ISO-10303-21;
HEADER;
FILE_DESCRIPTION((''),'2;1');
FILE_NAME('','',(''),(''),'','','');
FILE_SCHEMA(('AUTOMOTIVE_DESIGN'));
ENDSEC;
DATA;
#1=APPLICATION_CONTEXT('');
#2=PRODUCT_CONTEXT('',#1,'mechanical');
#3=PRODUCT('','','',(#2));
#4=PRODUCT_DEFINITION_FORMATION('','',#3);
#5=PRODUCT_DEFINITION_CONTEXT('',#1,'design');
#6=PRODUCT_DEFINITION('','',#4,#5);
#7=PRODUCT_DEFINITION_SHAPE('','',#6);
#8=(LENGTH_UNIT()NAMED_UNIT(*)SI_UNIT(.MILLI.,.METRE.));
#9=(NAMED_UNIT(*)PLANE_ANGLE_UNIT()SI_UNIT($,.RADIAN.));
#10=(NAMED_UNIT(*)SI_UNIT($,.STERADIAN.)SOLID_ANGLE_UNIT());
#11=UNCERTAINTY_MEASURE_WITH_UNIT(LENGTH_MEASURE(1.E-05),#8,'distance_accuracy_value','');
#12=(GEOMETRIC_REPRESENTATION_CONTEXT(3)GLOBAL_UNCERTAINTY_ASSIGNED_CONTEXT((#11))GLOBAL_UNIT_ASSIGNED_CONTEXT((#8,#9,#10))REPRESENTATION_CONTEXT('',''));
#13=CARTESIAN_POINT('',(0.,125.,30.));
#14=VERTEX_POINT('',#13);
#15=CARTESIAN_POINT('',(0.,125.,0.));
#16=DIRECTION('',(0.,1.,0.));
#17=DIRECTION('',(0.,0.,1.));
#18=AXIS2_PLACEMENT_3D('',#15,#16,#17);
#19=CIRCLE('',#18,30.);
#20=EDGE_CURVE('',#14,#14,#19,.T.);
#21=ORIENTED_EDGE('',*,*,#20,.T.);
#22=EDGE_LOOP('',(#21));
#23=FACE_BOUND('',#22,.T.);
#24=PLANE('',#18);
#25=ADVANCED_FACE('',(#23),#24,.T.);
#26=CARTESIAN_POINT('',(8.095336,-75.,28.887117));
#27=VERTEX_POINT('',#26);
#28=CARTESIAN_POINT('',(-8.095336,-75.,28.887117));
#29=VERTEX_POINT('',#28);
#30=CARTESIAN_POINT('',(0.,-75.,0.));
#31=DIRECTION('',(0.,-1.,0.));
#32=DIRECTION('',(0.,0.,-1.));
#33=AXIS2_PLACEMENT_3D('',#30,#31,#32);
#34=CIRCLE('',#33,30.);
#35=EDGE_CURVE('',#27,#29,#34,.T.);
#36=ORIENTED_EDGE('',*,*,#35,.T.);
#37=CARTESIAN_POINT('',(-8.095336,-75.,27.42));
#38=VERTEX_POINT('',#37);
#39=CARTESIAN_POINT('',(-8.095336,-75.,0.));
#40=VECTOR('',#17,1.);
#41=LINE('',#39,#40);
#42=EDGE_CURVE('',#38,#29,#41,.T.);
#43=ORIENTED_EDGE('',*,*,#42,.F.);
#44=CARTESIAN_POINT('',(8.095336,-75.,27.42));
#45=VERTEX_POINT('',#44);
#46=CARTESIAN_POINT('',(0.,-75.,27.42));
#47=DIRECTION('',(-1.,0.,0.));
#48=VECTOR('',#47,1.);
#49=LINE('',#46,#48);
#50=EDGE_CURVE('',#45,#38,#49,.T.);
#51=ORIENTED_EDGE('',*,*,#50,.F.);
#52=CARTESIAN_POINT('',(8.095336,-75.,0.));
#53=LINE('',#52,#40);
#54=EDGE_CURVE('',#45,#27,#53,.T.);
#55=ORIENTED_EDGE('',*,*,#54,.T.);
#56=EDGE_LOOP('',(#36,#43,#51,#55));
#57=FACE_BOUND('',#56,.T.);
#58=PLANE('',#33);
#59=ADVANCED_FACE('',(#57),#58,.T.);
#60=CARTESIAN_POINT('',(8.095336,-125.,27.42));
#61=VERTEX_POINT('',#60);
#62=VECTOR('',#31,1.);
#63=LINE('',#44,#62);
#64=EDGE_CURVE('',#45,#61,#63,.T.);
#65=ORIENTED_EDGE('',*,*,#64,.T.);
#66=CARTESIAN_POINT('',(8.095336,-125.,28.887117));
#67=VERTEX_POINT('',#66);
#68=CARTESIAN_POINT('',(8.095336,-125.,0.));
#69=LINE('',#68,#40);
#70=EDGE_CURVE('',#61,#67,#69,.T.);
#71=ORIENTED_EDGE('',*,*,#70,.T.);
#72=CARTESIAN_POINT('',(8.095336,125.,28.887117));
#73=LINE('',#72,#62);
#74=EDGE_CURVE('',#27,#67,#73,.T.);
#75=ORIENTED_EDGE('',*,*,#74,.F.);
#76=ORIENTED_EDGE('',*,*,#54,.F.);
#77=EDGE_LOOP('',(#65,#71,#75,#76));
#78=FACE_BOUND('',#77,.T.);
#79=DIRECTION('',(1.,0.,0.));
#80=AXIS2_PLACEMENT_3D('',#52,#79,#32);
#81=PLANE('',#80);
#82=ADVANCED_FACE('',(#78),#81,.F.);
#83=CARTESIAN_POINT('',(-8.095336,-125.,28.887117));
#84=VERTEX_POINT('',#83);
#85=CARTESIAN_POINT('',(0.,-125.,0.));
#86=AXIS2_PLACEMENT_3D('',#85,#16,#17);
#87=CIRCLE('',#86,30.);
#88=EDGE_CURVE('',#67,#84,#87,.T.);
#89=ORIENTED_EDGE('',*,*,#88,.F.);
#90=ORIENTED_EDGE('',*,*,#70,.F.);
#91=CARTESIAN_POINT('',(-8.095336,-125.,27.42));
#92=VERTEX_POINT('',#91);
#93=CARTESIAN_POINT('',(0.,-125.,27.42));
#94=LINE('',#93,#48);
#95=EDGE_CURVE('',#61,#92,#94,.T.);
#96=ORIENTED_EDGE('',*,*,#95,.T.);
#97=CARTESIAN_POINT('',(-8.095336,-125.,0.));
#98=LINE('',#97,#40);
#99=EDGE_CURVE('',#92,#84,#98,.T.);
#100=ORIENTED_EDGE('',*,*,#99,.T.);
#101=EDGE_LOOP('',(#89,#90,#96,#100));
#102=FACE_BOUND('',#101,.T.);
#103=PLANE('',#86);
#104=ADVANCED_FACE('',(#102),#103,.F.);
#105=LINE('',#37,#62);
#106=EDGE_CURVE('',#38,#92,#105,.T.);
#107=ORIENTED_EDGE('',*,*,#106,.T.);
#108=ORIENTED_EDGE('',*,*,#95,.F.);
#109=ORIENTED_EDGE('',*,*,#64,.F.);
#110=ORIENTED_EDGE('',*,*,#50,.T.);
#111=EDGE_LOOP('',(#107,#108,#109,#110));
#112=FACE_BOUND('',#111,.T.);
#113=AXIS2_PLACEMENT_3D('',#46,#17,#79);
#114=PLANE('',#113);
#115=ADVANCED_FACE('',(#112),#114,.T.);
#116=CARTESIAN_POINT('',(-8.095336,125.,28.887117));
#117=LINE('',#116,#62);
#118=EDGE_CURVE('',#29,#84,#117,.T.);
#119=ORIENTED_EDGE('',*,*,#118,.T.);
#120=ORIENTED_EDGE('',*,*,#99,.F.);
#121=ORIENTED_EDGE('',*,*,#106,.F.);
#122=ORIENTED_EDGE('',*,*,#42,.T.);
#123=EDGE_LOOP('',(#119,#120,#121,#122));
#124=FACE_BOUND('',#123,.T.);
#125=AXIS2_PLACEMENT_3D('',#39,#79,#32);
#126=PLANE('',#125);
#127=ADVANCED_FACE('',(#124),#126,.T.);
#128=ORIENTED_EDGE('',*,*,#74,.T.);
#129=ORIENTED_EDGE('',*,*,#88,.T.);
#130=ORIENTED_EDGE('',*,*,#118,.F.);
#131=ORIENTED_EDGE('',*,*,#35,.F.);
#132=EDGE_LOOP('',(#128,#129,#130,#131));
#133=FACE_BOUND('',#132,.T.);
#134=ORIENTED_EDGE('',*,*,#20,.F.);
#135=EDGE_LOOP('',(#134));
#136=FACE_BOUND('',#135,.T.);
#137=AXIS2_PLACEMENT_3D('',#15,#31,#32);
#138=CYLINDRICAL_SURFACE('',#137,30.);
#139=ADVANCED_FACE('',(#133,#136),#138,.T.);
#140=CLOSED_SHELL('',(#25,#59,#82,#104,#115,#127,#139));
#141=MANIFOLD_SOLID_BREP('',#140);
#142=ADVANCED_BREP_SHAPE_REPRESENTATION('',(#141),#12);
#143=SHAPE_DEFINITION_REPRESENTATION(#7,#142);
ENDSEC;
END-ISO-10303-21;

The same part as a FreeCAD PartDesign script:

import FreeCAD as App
import Part
import Sketcher
Q = App.Units.Quantity

doc = App.newDocument("Part")
body = doc.addObject("PartDesign::Body", "Body")

# Sketch on XZ plane
sketch1 = doc.addObject("Sketcher::SketchObject", "Sketch")
body.addObject(sketch1)
sketch1.AttachmentSupport = (doc.XZ_Plane, [""])
sketch1.MapMode = "FlatFace"
sketch1.addGeometry(Part.Circle(App.Vector(0, 0, 0), App.Vector(0, 0, 1), 30), False)
sketch1.addConstraint(Sketcher.Constraint("Coincident", 0, 3, -1, 1))
sketch1.addConstraint(Sketcher.Constraint("Diameter", 0, Q("60 mm")))
pad1 = doc.addObject("PartDesign::Pad", "Pad")
body.addObject(pad1)
pad1.Profile = sketch1
pad1.Length = 250
pad1.Midplane = True

# Sketch on XZ plane
sketch2 = doc.addObject("Sketcher::SketchObject", "Sketch001")
body.addObject(sketch2)
sketch2.AttachmentSupport = (doc.XZ_Plane, [""])
sketch2.MapMode = "FlatFace"
sketch2.AttachmentOffset = App.Placement(App.Vector(0, 0, 75), App.Rotation())
sketch2.addGeometry(Part.LineSegment(App.Vector(8, 34, 0), App.Vector(-8, 34, 0)), False)
sketch2.addGeometry(Part.LineSegment(App.Vector(-8, 34, 0), App.Vector(-8, 27, 0)), False)
sketch2.addGeometry(Part.LineSegment(App.Vector(-8, 27, 0), App.Vector(8, 27, 0)), False)
sketch2.addGeometry(Part.LineSegment(App.Vector(8, 27, 0), App.Vector(8, 34, 0)), False)
sketch2.addConstraint(Sketcher.Constraint("Coincident", 0, 2, 1, 1))
sketch2.addConstraint(Sketcher.Constraint("Coincident", 1, 2, 2, 1))
sketch2.addConstraint(Sketcher.Constraint("Coincident", 2, 2, 3, 1))
sketch2.addConstraint(Sketcher.Constraint("Coincident", 3, 2, 0, 1))
sketch2.addConstraint(Sketcher.Constraint("Horizontal", 0))
sketch2.addConstraint(Sketcher.Constraint("Vertical", 1))
sketch2.addConstraint(Sketcher.Constraint("Horizontal", 2))
sketch2.addConstraint(Sketcher.Constraint("Vertical", 3))
sketch2.addConstraint(Sketcher.Constraint("DistanceY", 1, 2, 1, 1, Q("7 mm")))
sketch2.addConstraint(Sketcher.Constraint("DistanceY", -1, 1, 0, 2, Q("34.42 mm")))
sketch2.addConstraint(Sketcher.Constraint("DistanceX", 0, 2, 0, 1, Q("16.190671 mm")))
sketch2.addConstraint(Sketcher.Constraint("DistanceX", 0, 2, -1, 1, Q("8.095336 mm")))
pocket1 = doc.addObject("PartDesign::Pocket", "Pocket")
body.addObject(pocket1)
pocket1.Profile = sketch2
pocket1.Length = 50
pocket1.Reversed = True

doc.recompute()
